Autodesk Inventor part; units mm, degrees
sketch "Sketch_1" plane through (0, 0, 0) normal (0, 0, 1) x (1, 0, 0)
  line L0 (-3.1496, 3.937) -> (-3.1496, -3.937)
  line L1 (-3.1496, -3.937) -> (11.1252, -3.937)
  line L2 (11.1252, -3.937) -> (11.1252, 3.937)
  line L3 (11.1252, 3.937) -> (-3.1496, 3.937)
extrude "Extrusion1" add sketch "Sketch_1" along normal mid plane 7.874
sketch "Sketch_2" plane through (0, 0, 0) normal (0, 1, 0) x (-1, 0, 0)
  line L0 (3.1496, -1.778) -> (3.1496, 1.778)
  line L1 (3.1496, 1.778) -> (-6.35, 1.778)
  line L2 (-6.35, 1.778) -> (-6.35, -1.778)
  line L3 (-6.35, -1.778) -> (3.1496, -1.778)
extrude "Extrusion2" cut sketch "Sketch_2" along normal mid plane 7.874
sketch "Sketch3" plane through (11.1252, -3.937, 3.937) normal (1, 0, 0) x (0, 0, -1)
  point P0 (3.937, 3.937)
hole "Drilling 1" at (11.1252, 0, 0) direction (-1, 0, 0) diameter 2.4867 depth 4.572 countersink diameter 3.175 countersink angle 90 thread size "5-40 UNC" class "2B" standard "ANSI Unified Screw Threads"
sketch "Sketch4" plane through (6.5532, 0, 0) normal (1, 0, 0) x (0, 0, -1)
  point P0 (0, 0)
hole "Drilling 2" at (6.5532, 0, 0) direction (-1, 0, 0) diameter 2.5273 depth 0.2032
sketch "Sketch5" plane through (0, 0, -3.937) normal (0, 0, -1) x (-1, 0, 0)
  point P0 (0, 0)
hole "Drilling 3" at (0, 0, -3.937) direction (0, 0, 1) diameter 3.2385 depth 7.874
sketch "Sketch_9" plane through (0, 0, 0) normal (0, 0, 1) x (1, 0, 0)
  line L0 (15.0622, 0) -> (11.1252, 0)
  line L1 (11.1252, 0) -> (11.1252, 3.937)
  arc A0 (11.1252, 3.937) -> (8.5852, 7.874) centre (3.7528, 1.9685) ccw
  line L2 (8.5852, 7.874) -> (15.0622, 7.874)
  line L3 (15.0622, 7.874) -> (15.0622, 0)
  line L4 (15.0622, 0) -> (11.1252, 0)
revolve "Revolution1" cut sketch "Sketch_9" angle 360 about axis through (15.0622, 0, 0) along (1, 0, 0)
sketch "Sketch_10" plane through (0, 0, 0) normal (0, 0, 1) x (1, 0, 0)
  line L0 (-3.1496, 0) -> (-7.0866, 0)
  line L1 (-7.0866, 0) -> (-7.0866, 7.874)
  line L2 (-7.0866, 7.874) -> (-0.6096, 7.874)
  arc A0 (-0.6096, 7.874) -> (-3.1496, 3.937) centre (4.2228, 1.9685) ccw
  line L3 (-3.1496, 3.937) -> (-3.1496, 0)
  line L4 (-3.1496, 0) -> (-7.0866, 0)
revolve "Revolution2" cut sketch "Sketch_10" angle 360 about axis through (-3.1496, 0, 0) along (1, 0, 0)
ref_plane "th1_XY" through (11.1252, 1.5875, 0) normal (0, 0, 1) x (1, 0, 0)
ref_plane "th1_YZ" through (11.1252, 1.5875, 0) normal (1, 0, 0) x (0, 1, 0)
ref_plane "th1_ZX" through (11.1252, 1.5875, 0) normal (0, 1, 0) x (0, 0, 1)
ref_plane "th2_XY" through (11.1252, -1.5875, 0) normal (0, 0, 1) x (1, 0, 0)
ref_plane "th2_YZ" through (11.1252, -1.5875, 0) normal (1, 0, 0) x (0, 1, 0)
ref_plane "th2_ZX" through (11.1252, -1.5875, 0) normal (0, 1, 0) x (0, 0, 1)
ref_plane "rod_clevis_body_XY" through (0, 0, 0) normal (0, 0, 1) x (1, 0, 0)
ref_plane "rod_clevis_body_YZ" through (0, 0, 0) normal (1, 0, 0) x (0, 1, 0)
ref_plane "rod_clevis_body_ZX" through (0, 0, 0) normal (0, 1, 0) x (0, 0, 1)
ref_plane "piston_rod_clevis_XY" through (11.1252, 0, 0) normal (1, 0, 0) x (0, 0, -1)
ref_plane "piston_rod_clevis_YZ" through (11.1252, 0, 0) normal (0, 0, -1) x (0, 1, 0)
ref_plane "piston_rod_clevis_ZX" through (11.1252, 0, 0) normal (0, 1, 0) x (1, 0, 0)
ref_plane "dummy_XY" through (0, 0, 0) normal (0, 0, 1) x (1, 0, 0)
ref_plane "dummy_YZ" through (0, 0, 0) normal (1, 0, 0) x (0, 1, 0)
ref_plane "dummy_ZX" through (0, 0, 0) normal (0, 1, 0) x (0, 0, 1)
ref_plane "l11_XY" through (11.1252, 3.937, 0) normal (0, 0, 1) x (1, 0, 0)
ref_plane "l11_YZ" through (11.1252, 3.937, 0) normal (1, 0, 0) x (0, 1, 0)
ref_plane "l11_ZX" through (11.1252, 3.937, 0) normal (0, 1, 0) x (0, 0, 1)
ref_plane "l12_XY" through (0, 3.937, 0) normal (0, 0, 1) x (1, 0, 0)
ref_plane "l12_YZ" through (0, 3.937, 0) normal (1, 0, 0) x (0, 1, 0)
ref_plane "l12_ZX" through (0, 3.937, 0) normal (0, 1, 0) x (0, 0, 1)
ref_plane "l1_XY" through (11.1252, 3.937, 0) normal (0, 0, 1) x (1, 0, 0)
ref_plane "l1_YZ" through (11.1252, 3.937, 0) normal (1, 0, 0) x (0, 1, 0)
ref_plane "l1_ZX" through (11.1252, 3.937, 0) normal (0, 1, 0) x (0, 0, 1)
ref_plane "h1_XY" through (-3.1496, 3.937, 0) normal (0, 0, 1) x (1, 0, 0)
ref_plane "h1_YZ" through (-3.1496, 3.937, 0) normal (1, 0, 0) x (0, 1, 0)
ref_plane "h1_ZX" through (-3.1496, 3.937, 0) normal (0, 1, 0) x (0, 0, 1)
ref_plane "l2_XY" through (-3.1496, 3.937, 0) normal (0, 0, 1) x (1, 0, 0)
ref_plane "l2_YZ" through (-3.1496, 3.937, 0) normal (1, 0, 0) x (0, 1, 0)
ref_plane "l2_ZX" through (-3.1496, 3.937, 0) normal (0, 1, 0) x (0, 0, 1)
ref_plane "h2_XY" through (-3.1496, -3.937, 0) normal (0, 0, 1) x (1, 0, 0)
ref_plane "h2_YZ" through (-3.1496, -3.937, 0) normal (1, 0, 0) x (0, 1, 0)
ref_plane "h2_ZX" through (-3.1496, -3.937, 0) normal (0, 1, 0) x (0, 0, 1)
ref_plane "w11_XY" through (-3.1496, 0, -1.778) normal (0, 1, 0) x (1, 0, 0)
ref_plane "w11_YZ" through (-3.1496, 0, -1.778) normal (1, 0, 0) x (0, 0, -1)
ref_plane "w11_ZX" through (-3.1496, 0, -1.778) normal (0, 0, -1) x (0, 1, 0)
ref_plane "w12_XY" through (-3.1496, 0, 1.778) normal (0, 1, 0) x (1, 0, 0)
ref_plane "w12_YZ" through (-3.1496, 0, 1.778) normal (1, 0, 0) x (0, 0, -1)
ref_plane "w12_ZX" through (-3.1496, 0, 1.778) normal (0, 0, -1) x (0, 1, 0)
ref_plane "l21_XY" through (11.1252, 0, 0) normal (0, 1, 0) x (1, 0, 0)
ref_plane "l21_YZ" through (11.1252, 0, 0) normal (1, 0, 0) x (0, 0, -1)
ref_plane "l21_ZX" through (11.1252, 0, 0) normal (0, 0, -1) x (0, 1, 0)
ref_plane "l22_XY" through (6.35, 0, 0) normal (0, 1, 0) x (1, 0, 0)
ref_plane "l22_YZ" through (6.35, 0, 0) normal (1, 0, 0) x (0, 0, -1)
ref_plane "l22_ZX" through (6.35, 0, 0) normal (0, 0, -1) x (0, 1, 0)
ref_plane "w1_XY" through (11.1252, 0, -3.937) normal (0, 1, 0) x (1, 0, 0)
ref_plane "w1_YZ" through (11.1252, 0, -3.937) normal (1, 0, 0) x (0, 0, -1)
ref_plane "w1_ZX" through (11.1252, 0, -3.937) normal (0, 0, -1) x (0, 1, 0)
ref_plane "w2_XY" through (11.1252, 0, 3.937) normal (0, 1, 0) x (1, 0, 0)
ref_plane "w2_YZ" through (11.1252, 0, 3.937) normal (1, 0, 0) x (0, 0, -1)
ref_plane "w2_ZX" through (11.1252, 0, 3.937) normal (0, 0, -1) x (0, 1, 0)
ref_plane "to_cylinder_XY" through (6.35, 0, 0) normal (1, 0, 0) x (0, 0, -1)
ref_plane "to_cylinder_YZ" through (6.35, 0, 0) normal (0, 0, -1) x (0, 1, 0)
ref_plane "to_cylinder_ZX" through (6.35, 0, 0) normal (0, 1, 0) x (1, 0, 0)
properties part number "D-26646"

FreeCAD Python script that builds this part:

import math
import FreeCAD as App
import Part
import Sketcher
Q = App.Units.Quantity

doc = App.newDocument("Part")
body = doc.addObject("PartDesign::Body", "Body")

sketch1 = body.newObject("Sketcher::SketchObject", "Sketch")
sketch1.AttachmentSupport = (doc.getObject("XY_Plane"), [""])
sketch1.MapMode = "FlatFace"
sketch1.addGeometry([
    Part.LineSegment(App.Vector(11, 4, 0), App.Vector(-3, 4, 0)),
    Part.LineSegment(App.Vector(-3, 4, 0), App.Vector(-3, -4, 0)),
    Part.LineSegment(App.Vector(-3, -4, 0), App.Vector(11, -4, 0)),
    Part.LineSegment(App.Vector(11, -4, 0), App.Vector(11, 4, 0)),
], False)
sketch1.addConstraint([
    Sketcher.Constraint("Coincident", 0, 2, 1, 1),
    Sketcher.Constraint("Coincident", 1, 2, 2, 1),
    Sketcher.Constraint("Coincident", 2, 2, 3, 1),
    Sketcher.Constraint("Coincident", 3, 2, 0, 1),
    Sketcher.Constraint("Horizontal", 0),
    Sketcher.Constraint("Vertical", 1),
    Sketcher.Constraint("Horizontal", 2),
    Sketcher.Constraint("Vertical", 3),
    Sketcher.Constraint("DistanceY", 1, 2, 1, 1, Q("0.31 in")),
    Sketcher.Constraint("DistanceX", 0, 2, 0, 1, Q("0.562 in")),
    Sketcher.Constraint("DistanceX", 0, 2, -1, 1, Q("0.124 in")),
    Sketcher.Constraint("DistanceY", -1, 1, 0, 2, Q("0.155 in")),
])
pad1 = body.newObject("PartDesign::Pad", "Pad")
pad1.Profile = sketch1
pad1.Length = Q("0.31 in")
pad1.Midplane = True

sketch2 = body.newObject("Sketcher::SketchObject", "Sketch001")
sketch2.AttachmentSupport = (doc.getObject("XZ_Plane"), [""])
sketch2.MapMode = "FlatFace"
sketch2.addGeometry([
    Part.LineSegment(App.Vector(6.3, -1.8, 0), App.Vector(-3.1, -1.8, 0)),
    Part.LineSegment(App.Vector(-3.1, -1.8, 0), App.Vector(-3.1, 1.8, 0)),
    Part.LineSegment(App.Vector(-3.1, 1.8, 0), App.Vector(6.3, 1.8, 0)),
    Part.LineSegment(App.Vector(6.3, 1.8, 0), App.Vector(6.3, -1.8, 0)),
], False)
sketch2.addConstraint([
    Sketcher.Constraint("Coincident", 0, 2, 1, 1),
    Sketcher.Constraint("Coincident", 1, 2, 2, 1),
    Sketcher.Constraint("Coincident", 2, 2, 3, 1),
    Sketcher.Constraint("Coincident", 3, 2, 0, 1),
    Sketcher.Constraint("Horizontal", 0),
    Sketcher.Constraint("Vertical", 1),
    Sketcher.Constraint("Horizontal", 2),
    Sketcher.Constraint("Vertical", 3),
    Sketcher.Constraint("DistanceY", 1, 1, 1, 2, Q("0.14 in")),
    Sketcher.Constraint("DistanceX", 0, 2, 0, 1, Q("0.374 in")),
    Sketcher.Constraint("DistanceY", 0, 2, -1, 1, Q("0.07 in")),
    Sketcher.Constraint("DistanceX", -1, 1, 2, 2, Q("0.25 in")),
])
pocket1 = body.newObject("PartDesign::Pocket", "Pocket")
pocket1.Profile = sketch2
pocket1.Length = Q("0.31 in")
pocket1.Midplane = True

sketch3 = body.newObject("Sketcher::SketchObject", "Sketch002")
sketch3.AttachmentSupport = (doc.getObject("YZ_Plane"), [""])
sketch3.MapMode = "FlatFace"
sketch3.AttachmentOffset = App.Placement(App.Vector(0, 0, 0.438 * 25.4), App.Rotation())
sketch3.addGeometry(Part.Circle(App.Vector(0, 0, 0), App.Vector(0, 0, 1), 1.2), False)
sketch3.addConstraint([
    Sketcher.Constraint("Coincident", 0, 3, -1, 1),
    Sketcher.Constraint("Diameter", 0, Q("0.0979 in")),
])
doc.recompute()
hole = body.newObject("PartDesign::Hole", "Hole")
hole.Profile = sketch3
hole.ThreadType = "None"
hole.Diameter = Q("0.0979016 in")
hole.DepthType = "Dimension"
hole.Depth = Q("0.18 in")
hole.DrillPoint = "Flat"
hole.HoleCutType = "Countersink"
hole.HoleCutDiameter = Q("0.125 in")
hole.HoleCutCountersinkAngle = 90

sketch4 = body.newObject("Sketcher::SketchObject", "Sketch003")
sketch4.AttachmentSupport = (doc.getObject("YZ_Plane"), [""])
sketch4.MapMode = "FlatFace"
sketch4.AttachmentOffset = App.Placement(App.Vector(0, 0, 0.258 * 25.4), App.Rotation())
sketch4.addGeometry(Part.Circle(App.Vector(0, 0, 0), App.Vector(0, 0, 1), 1.3), False)
sketch4.addConstraint([
    Sketcher.Constraint("Coincident", 0, 3, -1, 1),
    Sketcher.Constraint("Diameter", 0, Q("0.0995 in")),
])
doc.recompute()
hole2 = body.newObject("PartDesign::Hole", "Hole001")
hole2.Profile = sketch4
hole2.ThreadType = "None"
hole2.Diameter = Q("0.0995 in")
hole2.DepthType = "Dimension"
hole2.Depth = Q("0.008 in")
hole2.DrillPoint = "Flat"

sketch5 = body.newObject("Sketcher::SketchObject", "Sketch004")
sketch5.AttachmentSupport = (doc.getObject("XY_Plane"), [""])
sketch5.MapMode = "FlatFace"
sketch5.AttachmentOffset = App.Placement(App.Vector(0, 0, -0.155 * 25.4), App.Rotation())
sketch5.addGeometry(Part.Circle(App.Vector(0, 0, 0), App.Vector(0, 0, 1), 1.6), False)
sketch5.addConstraint([
    Sketcher.Constraint("Coincident", 0, 3, -1, 1),
    Sketcher.Constraint("Diameter", 0, Q("0.1275 in")),
])
doc.recompute()
hole3 = body.newObject("PartDesign::Hole", "Hole002")
hole3.Profile = sketch5
hole3.ThreadType = "None"
hole3.Diameter = Q("0.1275 in")
hole3.DepthType = "Dimension"
hole3.Depth = Q("0.31 in")
hole3.DrillPoint = "Flat"
hole3.Reversed = True

sketch6 = body.newObject("Sketcher::SketchObject", "Sketch005")
sketch6.AttachmentSupport = (doc.getObject("XY_Plane"), [""])
sketch6.MapMode = "FlatFace"
sketch6.addGeometry([
    Part.LineSegment(App.Vector(11.1, 0, 0), App.Vector(15.1, 0, 0)),
    Part.LineSegment(App.Vector(15.1, 0, 0), App.Vector(15.1, 7.9, 0)),
    Part.LineSegment(App.Vector(15.1, 7.9, 0), App.Vector(8.6, 7.9, 0)),
    Part.ArcOfCircle(Part.Circle(App.Vector(3.8, 2, 0), App.Vector(0, 0, 1), 7.6), math.radians(15), math.radians(51)),
    Part.LineSegment(App.Vector(11.1, 3.9, 0), App.Vector(11.1, 0, 0)),
], False)
sketch6.addConstraint([
    Sketcher.Constraint("Coincident", 0, 2, 1, 1),
    Sketcher.Constraint("Coincident", 1, 2, 2, 1),
    Sketcher.Constraint("Coincident", 2, 2, 3, 2),
    Sketcher.Constraint("Coincident", 3, 1, 4, 1),
    Sketcher.Constraint("Coincident", 4, 2, 0, 1),
    Sketcher.Constraint("Horizontal", 0),
    Sketcher.Constraint("Vertical", 1),
    Sketcher.Constraint("Horizontal", 2),
    Sketcher.Constraint("Vertical", 4),
    Sketcher.Constraint("PointOnObject", 0, 2, -1),
    Sketcher.Constraint("Equal", 0, 4),
    Sketcher.Constraint("DistanceY", 1, 1, 1, 2, Q("0.31 in")),
    Sketcher.Constraint("DistanceX", 2, 2, 3, 1, Q("0.1 in")),
    Sketcher.Constraint("DistanceX", 0, 1, 0, 2, Q("0.155 in")),
    Sketcher.Constraint("Radius", 3, Q("7.6307 mm")),
    Sketcher.Constraint("DistanceX", -1, 1, 0, 2, Q("0.593 in")),
])
groove = body.newObject("PartDesign::Groove", "Groove")
groove.Profile = sketch6
groove.ReferenceAxis = (sketch6, ["H_Axis"])
groove.Angle = 360

sketch7 = body.newObject("Sketcher::SketchObject", "Sketch006")
sketch7.AttachmentSupport = (doc.getObject("XY_Plane"), [""])
sketch7.MapMode = "FlatFace"
sketch7.addGeometry([
    Part.LineSegment(App.Vector(-7.1, 0, 0), App.Vector(-3.1, 0, 0)),
    Part.LineSegment(App.Vector(-3.1, 0, 0), App.Vector(-3.1, 3.9, 0)),
    Part.ArcOfCircle(Part.Circle(App.Vector(4.2, 2, 0), App.Vector(0, 0, 1), 7.6), math.radians(129), math.radians(165)),
    Part.LineSegment(App.Vector(-0.6, 7.9, 0), App.Vector(-7.1, 7.9, 0)),
    Part.LineSegment(App.Vector(-7.1, 7.9, 0), App.Vector(-7.1, 0, 0)),
], False)
sketch7.addConstraint([
    Sketcher.Constraint("Coincident", 0, 2, 1, 1),
    Sketcher.Constraint("Coincident", 1, 2, 2, 2),
    Sketcher.Constraint("Coincident", 2, 1, 3, 1),
    Sketcher.Constraint("Coincident", 3, 2, 4, 1),
    Sketcher.Constraint("Coincident", 4, 2, 0, 1),
    Sketcher.Constraint("Horizontal", 0),
    Sketcher.Constraint("Vertical", 1),
    Sketcher.Constraint("Horizontal", 3),
    Sketcher.Constraint("Vertical", 4),
    Sketcher.Constraint("PointOnObject", 0, 2, -1),
    Sketcher.Constraint("Equal", 0, 1),
    Sketcher.Constraint("DistanceY", 4, 2, 4, 1, Q("0.31 in")),
    Sketcher.Constraint("DistanceX", 1, 2, 2, 1, Q("0.1 in")),
    Sketcher.Constraint("DistanceX", 0, 1, 0, 2, Q("0.155 in")),
    Sketcher.Constraint("Radius", 2, Q("7.6307 mm")),
    Sketcher.Constraint("DistanceX", 0, 2, -1, 1, Q("0.124 in")),
])
groove2 = body.newObject("PartDesign::Groove", "Groove001")
groove2.Profile = sketch7
groove2.ReferenceAxis = (sketch7, ["H_Axis"])
groove2.Angle = 360

doc.recompute()
